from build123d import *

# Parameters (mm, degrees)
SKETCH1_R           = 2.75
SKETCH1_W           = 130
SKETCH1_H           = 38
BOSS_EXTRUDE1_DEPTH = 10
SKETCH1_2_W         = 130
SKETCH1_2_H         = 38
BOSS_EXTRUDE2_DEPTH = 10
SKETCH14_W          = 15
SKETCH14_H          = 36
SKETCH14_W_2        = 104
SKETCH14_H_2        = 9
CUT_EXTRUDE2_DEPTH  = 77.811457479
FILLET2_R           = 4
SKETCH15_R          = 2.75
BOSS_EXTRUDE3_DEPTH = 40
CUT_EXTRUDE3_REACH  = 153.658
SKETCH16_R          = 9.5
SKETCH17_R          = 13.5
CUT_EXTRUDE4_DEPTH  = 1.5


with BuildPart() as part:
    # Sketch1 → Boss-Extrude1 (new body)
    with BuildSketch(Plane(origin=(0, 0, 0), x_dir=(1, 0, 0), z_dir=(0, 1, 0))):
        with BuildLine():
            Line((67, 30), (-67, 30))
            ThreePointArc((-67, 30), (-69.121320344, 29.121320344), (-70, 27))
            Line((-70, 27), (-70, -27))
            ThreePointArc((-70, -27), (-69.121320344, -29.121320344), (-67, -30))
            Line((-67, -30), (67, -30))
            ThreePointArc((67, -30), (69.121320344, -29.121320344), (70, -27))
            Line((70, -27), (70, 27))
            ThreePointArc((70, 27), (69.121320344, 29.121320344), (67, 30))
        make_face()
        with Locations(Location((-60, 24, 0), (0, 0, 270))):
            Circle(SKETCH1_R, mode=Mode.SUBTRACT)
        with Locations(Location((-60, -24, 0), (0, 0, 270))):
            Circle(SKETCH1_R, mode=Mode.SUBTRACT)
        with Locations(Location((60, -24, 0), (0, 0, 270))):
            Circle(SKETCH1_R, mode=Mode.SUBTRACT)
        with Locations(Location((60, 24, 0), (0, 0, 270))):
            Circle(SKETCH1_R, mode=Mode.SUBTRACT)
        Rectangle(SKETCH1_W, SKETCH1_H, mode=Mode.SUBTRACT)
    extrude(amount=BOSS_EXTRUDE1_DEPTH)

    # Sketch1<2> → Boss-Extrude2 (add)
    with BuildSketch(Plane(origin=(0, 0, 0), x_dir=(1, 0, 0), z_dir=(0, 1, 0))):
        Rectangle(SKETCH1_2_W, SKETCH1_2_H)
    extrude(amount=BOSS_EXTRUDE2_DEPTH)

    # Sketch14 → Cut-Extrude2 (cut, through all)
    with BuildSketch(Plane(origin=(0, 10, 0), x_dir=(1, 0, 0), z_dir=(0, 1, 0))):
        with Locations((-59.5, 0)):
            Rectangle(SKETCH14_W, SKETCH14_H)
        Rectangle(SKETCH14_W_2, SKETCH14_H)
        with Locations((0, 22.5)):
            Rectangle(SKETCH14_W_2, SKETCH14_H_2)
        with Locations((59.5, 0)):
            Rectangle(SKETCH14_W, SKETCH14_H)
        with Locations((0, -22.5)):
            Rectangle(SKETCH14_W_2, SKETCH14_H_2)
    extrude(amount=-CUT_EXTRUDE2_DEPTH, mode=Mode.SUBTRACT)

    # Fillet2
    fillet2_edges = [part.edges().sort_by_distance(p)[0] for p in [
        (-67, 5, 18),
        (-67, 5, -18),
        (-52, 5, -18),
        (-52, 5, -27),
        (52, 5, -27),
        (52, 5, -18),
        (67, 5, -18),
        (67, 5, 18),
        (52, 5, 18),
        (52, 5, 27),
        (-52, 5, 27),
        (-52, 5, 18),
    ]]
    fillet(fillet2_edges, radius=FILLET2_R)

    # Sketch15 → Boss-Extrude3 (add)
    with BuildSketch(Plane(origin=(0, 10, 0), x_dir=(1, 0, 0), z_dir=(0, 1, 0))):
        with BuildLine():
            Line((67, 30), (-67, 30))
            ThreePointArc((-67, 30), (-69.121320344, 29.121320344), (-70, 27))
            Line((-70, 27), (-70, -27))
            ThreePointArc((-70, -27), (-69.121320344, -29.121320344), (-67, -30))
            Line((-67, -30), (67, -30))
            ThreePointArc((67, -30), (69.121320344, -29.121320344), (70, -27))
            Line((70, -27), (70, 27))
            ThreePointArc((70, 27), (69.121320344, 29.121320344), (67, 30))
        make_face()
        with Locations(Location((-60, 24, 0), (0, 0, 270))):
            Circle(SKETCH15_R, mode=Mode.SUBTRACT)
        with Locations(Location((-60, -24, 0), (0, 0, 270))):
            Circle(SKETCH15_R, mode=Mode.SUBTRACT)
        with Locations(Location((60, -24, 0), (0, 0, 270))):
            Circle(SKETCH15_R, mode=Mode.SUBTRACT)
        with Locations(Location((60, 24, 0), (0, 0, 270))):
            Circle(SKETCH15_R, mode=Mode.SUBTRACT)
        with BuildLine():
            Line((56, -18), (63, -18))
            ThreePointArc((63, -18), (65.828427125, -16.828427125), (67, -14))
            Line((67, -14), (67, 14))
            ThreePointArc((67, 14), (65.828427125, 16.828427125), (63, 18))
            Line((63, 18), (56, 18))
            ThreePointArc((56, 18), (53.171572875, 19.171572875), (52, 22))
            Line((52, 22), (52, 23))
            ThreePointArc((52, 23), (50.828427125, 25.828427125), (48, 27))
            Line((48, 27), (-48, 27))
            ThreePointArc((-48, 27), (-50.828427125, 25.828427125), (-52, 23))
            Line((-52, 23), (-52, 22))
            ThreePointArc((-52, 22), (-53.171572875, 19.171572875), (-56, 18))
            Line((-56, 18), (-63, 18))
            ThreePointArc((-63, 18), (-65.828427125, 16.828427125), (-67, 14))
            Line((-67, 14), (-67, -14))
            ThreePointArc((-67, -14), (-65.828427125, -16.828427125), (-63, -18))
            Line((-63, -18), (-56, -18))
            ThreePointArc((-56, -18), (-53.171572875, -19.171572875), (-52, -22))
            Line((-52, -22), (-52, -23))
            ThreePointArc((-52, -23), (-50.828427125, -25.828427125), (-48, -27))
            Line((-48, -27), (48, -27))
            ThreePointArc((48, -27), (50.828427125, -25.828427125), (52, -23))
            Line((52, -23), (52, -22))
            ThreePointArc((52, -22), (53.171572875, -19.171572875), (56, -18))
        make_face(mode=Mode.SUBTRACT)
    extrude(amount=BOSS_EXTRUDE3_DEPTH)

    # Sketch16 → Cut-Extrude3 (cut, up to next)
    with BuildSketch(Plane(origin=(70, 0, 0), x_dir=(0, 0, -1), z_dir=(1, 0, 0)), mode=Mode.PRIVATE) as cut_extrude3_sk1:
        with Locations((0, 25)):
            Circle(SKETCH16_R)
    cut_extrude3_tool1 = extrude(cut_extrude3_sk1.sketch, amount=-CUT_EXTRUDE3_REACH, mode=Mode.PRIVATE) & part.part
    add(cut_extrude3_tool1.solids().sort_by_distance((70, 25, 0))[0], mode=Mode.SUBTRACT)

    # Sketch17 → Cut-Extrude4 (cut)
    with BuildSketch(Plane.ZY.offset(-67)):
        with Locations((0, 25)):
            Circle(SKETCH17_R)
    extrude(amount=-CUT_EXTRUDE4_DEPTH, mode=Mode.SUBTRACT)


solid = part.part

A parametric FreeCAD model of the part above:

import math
import FreeCAD as App
import Part
import Sketcher

V = App.Vector


def edges_at(feature, points):
    """Names of the edges that pass closest to the given points."""
    edges = feature.Shape.Edges
    near = lambda p: min(range(len(edges)), key=lambda i: edges[i].distToShape(Part.Vertex(*p))[0])
    return sorted({f"Edge{near(p) + 1}" for p in points})

doc = App.newDocument("Part")
body = doc.addObject("PartDesign::Body", "Body")

sketch1 = doc.addObject("Sketcher::SketchObject", "Sketch")
body.addObject(sketch1)
sketch1.AttachmentSupport = (doc.XZ_Plane, [""])
sketch1.MapMode = "FlatFace"
sketch1.addGeometry(Part.LineSegment(V(67, -30, 0), V(-67, -30, 0)), False)
sketch1.addGeometry(Part.ArcOfCircle(Part.Circle(V(-67, -27, 0), V(0, 0, 1), 3), math.radians(180), math.radians(270)), False)
sketch1.addGeometry(Part.LineSegment(V(-70, -27, 0), V(-70, 27, 0)), False)
sketch1.addGeometry(Part.ArcOfCircle(Part.Circle(V(-67, 27, 0), V(0, 0, 1), 3), math.radians(90), math.radians(180)), False)
sketch1.addGeometry(Part.LineSegment(V(-67, 30, 0), V(67, 30, 0)), False)
sketch1.addGeometry(Part.ArcOfCircle(Part.Circle(V(67, 27, 0), V(0, 0, 1), 3), math.radians(0), math.radians(90)), False)
sketch1.addGeometry(Part.LineSegment(V(70, 27, 0), V(70, -27, 0)), False)
sketch1.addGeometry(Part.ArcOfCircle(Part.Circle(V(67, -27, 0), V(0, 0, 1), 3), math.radians(-90), math.radians(0)), False)
sketch1.addGeometry(Part.Circle(V(-60, 24, 0), V(0, 0, 1), 2.8), False)
sketch1.addGeometry(Part.Circle(V(60, 24, 0), V(0, 0, 1), 2.8), False)
sketch1.addGeometry(Part.LineSegment(V(65, 19, 0), V(-65, 19, 0)), False)
sketch1.addGeometry(Part.LineSegment(V(-65, 19, 0), V(-65, -19, 0)), False)
sketch1.addGeometry(Part.LineSegment(V(-65, -19, 0), V(65, -19, 0)), False)
sketch1.addGeometry(Part.LineSegment(V(65, -19, 0), V(65, 19, 0)), False)
sketch1.addGeometry(Part.Circle(V(-60, -24, 0), V(0, 0, 1), 2.8), False)
sketch1.addGeometry(Part.Circle(V(60, -24, 0), V(0, 0, 1), 2.8), False)
sketch1.addConstraint(Sketcher.Constraint("Tangent", 0, 2, 1, 2))
sketch1.addConstraint(Sketcher.Constraint("Tangent", 1, 1, 2, 1))
sketch1.addConstraint(Sketcher.Constraint("Tangent", 2, 2, 3, 2))
sketch1.addConstraint(Sketcher.Constraint("Tangent", 3, 1, 4, 1))
sketch1.addConstraint(Sketcher.Constraint("Tangent", 4, 2, 5, 2))
sketch1.addConstraint(Sketcher.Constraint("Tangent", 5, 1, 6, 1))
sketch1.addConstraint(Sketcher.Constraint("Tangent", 6, 2, 7, 2))
sketch1.addConstraint(Sketcher.Constraint("Tangent", 7, 1, 0, 1))
sketch1.addConstraint(Sketcher.Constraint("Coincident", 10, 2, 11, 1))
sketch1.addConstraint(Sketcher.Constraint("Coincident", 11, 2, 12, 1))
sketch1.addConstraint(Sketcher.Constraint("Coincident", 12, 2, 13, 1))
sketch1.addConstraint(Sketcher.Constraint("Coincident", 13, 2, 10, 1))
sketch1.addConstraint(Sketcher.Constraint("Horizontal", 0))
sketch1.addConstraint(Sketcher.Constraint("Vertical", 2))
sketch1.addConstraint(Sketcher.Constraint("Horizontal", 4))
sketch1.addConstraint(Sketcher.Constraint("Vertical", 6))
sketch1.addConstraint(Sketcher.Constraint("Horizontal", 10))
sketch1.addConstraint(Sketcher.Constraint("Vertical", 11))
sketch1.addConstraint(Sketcher.Constraint("Horizontal", 12))
sketch1.addConstraint(Sketcher.Constraint("Vertical", 13))
sketch1.addConstraint(Sketcher.Constraint("Equal", 1, 3))
sketch1.addConstraint(Sketcher.Constraint("Equal", 3, 5))
sketch1.addConstraint(Sketcher.Constraint("Equal", 5, 7))
sketch1.addConstraint(Sketcher.Constraint("Equal", 8, 9))
sketch1.addConstraint(Sketcher.Constraint("Equal", 9, 14))
sketch1.addConstraint(Sketcher.Constraint("Equal", 14, 15))
sketch1.addConstraint(Sketcher.Constraint("Symmetric", 1, 3, 5, 3, -1, 1))
sketch1.addConstraint(Sketcher.Constraint("Symmetric", 9, 3, 14, 3, -1, 1))
sketch1.addConstraint(Sketcher.Constraint("Symmetric", 8, 3, 15, 3, -1, 1))
sketch1.addConstraint(Sketcher.Constraint("Symmetric", 10, 2, 12, 2, -1, 1))
sketch1.addConstraint(Sketcher.Constraint("Symmetric", 8, 3, 9, 3, -2))
sketch1.addConstraint(Sketcher.Constraint("Radius", 1, 3.0))
sketch1.addConstraint(Sketcher.Constraint("Diameter", 8, 5.5))
sketch1.addConstraint(Sketcher.Constraint("DistanceX", 0, 2, 0, 1, 134.0))
sketch1.addConstraint(Sketcher.Constraint("DistanceX", 10, 2, 10, 1, 130.0))
sketch1.addConstraint(Sketcher.Constraint("DistanceY", 2, 1, 2, 2, 54.0))
sketch1.addConstraint(Sketcher.Constraint("DistanceY", 11, 2, 11, 1, 38.0))
sketch1.addConstraint(Sketcher.Constraint("DistanceX", 8, 3, -1, 1, 60.0))
sketch1.addConstraint(Sketcher.Constraint("DistanceY", -1, 1, 8, 3, 24.0))
pad1 = doc.addObject("PartDesign::Pad", "Pad")
body.addObject(pad1)
pad1.Profile = sketch1
pad1.Length = 10
pad1.Reversed = True

sketch2 = doc.addObject("Sketcher::SketchObject", "Sketch001")
body.addObject(sketch2)
sketch2.AttachmentSupport = (doc.XZ_Plane, [""])
sketch2.MapMode = "FlatFace"
sketch2.addGeometry(Part.LineSegment(V(-65, -19, 0), V(-65, 19, 0)), False)
sketch2.addGeometry(Part.LineSegment(V(-65, 19, 0), V(65, 19, 0)), False)
sketch2.addGeometry(Part.LineSegment(V(65, 19, 0), V(65, -19, 0)), False)
sketch2.addGeometry(Part.LineSegment(V(65, -19, 0), V(-65, -19, 0)), False)
sketch2.addConstraint(Sketcher.Constraint("Coincident", 0, 2, 1, 1))
sketch2.addConstraint(Sketcher.Constraint("Coincident", 1, 2, 2, 1))
sketch2.addConstraint(Sketcher.Constraint("Coincident", 2, 2, 3, 1))
sketch2.addConstraint(Sketcher.Constraint("Coincident", 3, 2, 0, 1))
sketch2.addConstraint(Sketcher.Constraint("Vertical", 0))
sketch2.addConstraint(Sketcher.Constraint("Horizontal", 1))
sketch2.addConstraint(Sketcher.Constraint("Vertical", 2))
sketch2.addConstraint(Sketcher.Constraint("Horizontal", 3))
sketch2.addConstraint(Sketcher.Constraint("Symmetric", 0, 2, 2, 2, -1, 1))
sketch2.addConstraint(Sketcher.Constraint("DistanceX", 1, 1, 1, 2, 130.0))
sketch2.addConstraint(Sketcher.Constraint("DistanceY", 0, 1, 0, 2, 38.0))
pad2 = doc.addObject("PartDesign::Pad", "Pad001")
body.addObject(pad2)
pad2.Profile = sketch2
pad2.Length = 10
pad2.Reversed = True

sketch3 = doc.addObject("Sketcher::SketchObject", "Sketch002")
body.addObject(sketch3)
sketch3.AttachmentSupport = (doc.XZ_Plane, [""])
sketch3.MapMode = "FlatFace"
sketch3.AttachmentOffset = App.Placement(V(0, 0, -10), App.Rotation())
sketch3.addGeometry(Part.LineSegment(V(-67, -18, 0), V(-67, 18, 0)), False)
sketch3.addGeometry(Part.LineSegment(V(-67, 18, 0), V(-52, 18, 0)), False)
sketch3.addGeometry(Part.LineSegment(V(-52, 18, 0), V(-52, 27, 0)), False)
sketch3.addGeometry(Part.LineSegment(V(-52, 27, 0), V(52, 27, 0)), False)
sketch3.addGeometry(Part.LineSegment(V(52, 27, 0), V(52, 18, 0)), False)
sketch3.addGeometry(Part.LineSegment(V(52, 18, 0), V(67, 18, 0)), False)
sketch3.addGeometry(Part.LineSegment(V(67, 18, 0), V(67, -18, 0)), False)
sketch3.addGeometry(Part.LineSegment(V(67, -18, 0), V(52, -18, 0)), False)
sketch3.addGeometry(Part.LineSegment(V(52, -18, 0), V(52, -27, 0)), False)
sketch3.addGeometry(Part.LineSegment(V(52, -27, 0), V(-52, -27, 0)), False)
sketch3.addGeometry(Part.LineSegment(V(-52, -27, 0), V(-52, -18, 0)), False)
sketch3.addGeometry(Part.LineSegment(V(-52, -18, 0), V(-67, -18, 0)), False)
sketch3.addConstraint(Sketcher.Constraint("Coincident", 0, 2, 1, 1))
sketch3.addConstraint(Sketcher.Constraint("Coincident", 1, 2, 2, 1))
sketch3.addConstraint(Sketcher.Constraint("Coincident", 2, 2, 3, 1))
sketch3.addConstraint(Sketcher.Constraint("Coincident", 3, 2, 4, 1))
sketch3.addConstraint(Sketcher.Constraint("Coincident", 4, 2, 5, 1))
sketch3.addConstraint(Sketcher.Constraint("Coincident", 5, 2, 6, 1))
sketch3.addConstraint(Sketcher.Constraint("Coincident", 6, 2, 7, 1))
sketch3.addConstraint(Sketcher.Constraint("Coincident", 7, 2, 8, 1))
sketch3.addConstraint(Sketcher.Constraint("Coincident", 8, 2, 9, 1))
sketch3.addConstraint(Sketcher.Constraint("Coincident", 9, 2, 10, 1))
sketch3.addConstraint(Sketcher.Constraint("Coincident", 10, 2, 11, 1))
sketch3.addConstraint(Sketcher.Constraint("Coincident", 11, 2, 0, 1))
sketch3.addConstraint(Sketcher.Constraint("Vertical", 0))
sketch3.addConstraint(Sketcher.Constraint("Horizontal", 1))
sketch3.addConstraint(Sketcher.Constraint("Vertical", 2))
sketch3.addConstraint(Sketcher.Constraint("Horizontal", 3))
sketch3.addConstraint(Sketcher.Constraint("Vertical", 4))
sketch3.addConstraint(Sketcher.Constraint("Horizontal", 5))
sketch3.addConstraint(Sketcher.Constraint("Vertical", 6))
sketch3.addConstraint(Sketcher.Constraint("Horizontal", 7))
sketch3.addConstraint(Sketcher.Constraint("Vertical", 8))
sketch3.addConstraint(Sketcher.Constraint("Horizontal", 9))
sketch3.addConstraint(Sketcher.Constraint("Vertical", 10))
sketch3.addConstraint(Sketcher.Constraint("Horizontal", 11))
sketch3.addConstraint(Sketcher.Constraint("Symmetric", 0, 2, 6, 2, -1, 1))
sketch3.addConstraint(Sketcher.Constraint("Symmetric", 2, 2, 8, 2, -1, 1))
sketch3.addConstraint(Sketcher.Constraint("Symmetric", 4, 2, 10, 2, -1, 1))
sketch3.addConstraint(Sketcher.Constraint("Symmetric", 1, 2, 4, 2, -2))
sketch3.addConstraint(Sketcher.Constraint("DistanceX", 1, 1, 1, 2, 15.0))
sketch3.addConstraint(Sketcher.Constraint("DistanceX", 3, 1, 3, 2, 104.0))
sketch3.addConstraint(Sketcher.Constraint("DistanceY", 0, 1, 0, 2, 36.0))
sketch3.addConstraint(Sketcher.Constraint("DistanceY", 2, 1, 2, 2, 9.0))
pocket1 = doc.addObject("PartDesign::Pocket", "Pocket")
body.addObject(pocket1)
pocket1.Profile = sketch3
pocket1.Type = "ThroughAll"
pocket1.Reversed = True
doc.recompute()

fillet = doc.addObject("PartDesign::Fillet", "Fillet")
body.addObject(fillet)
fillet.Base = (pocket1, edges_at(pocket1, [
    (-67, 5, 18),
    (-67, 5, -18),
    (-52, 5, -18),
    (-52, 5, -27),
    (52, 5, -27),
    (52, 5, -18),
    (67, 5, -18),
    (67, 5, 18),
    (52, 5, 18),
    (52, 5, 27),
    (-52, 5, 27),
    (-52, 5, 18),
]))
fillet.Radius = 4

sketch4 = doc.addObject("Sketcher::SketchObject", "Sketch003")
body.addObject(sketch4)
sketch4.AttachmentSupport = (doc.XZ_Plane, [""])
sketch4.MapMode = "FlatFace"
sketch4.AttachmentOffset = App.Placement(V(0, 0, -10), App.Rotation())
sketch4.addGeometry(Part.LineSegment(V(67, -30, 0), V(-67, -30, 0)), False)
sketch4.addGeometry(Part.ArcOfCircle(Part.Circle(V(-67, -27, 0), V(0, 0, 1), 3), math.radians(180), math.radians(270)), False)
sketch4.addGeometry(Part.LineSegment(V(-70, -27, 0), V(-70, 27, 0)), False)
sketch4.addGeometry(Part.ArcOfCircle(Part.Circle(V(-67, 27, 0), V(0, 0, 1), 3), math.radians(90), math.radians(180)), False)
sketch4.addGeometry(Part.LineSegment(V(-67, 30, 0), V(67, 30, 0)), False)
sketch4.addGeometry(Part.ArcOfCircle(Part.Circle(V(67, 27, 0), V(0, 0, 1), 3), math.radians(0), math.radians(90)), False)
sketch4.addGeometry(Part.LineSegment(V(70, 27, 0), V(70, -27, 0)), False)
sketch4.addGeometry(Part.ArcOfCircle(Part.Circle(V(67, -27, 0), V(0, 0, 1), 3), math.radians(-90), math.radians(0)), False)
sketch4.addGeometry(Part.Circle(V(-60, 24, 0), V(0, 0, 1), 2.8), False)
sketch4.addGeometry(Part.Circle(V(60, 24, 0), V(0, 0, 1), 2.8), False)
sketch4.addGeometry(Part.Circle(V(-60, -24, 0), V(0, 0, 1), 2.8), False)
sketch4.addGeometry(Part.LineSegment(V(63, 18, 0), V(56, 18, 0)), False)
sketch4.addGeometry(Part.ArcOfCircle(Part.Circle(V(56, 22, 0), V(0, 0, 1), 4), math.radians(180), math.radians(270)), False)
sketch4.addGeometry(Part.LineSegment(V(52, 22, 0), V(52, 23, 0)), False)
sketch4.addGeometry(Part.ArcOfCircle(Part.Circle(V(48, 23, 0), V(0, 0, 1), 4), math.radians(0), math.radians(90)), False)
sketch4.addGeometry(Part.LineSegment(V(48, 27, 0), V(-48, 27, 0)), False)
sketch4.addGeometry(Part.ArcOfCircle(Part.Circle(V(-48, 23, 0), V(0, 0, 1), 4), math.radians(90), math.radians(180)), False)
sketch4.addGeometry(Part.LineSegment(V(-52, 23, 0), V(-52, 22, 0)), False)
sketch4.addGeometry(Part.ArcOfCircle(Part.Circle(V(-56, 22, 0), V(0, 0, 1), 4), math.radians(-90), math.radians(0)), False)
sketch4.addGeometry(Part.LineSegment(V(-56, 18, 0), V(-63, 18, 0)), False)
sketch4.addGeometry(Part.ArcOfCircle(Part.Circle(V(-63, 14, 0), V(0, 0, 1), 4), math.radians(90), math.radians(180)), False)
sketch4.addGeometry(Part.LineSegment(V(-67, 14, 0), V(-67, -14, 0)), False)
sketch4.addGeometry(Part.ArcOfCircle(Part.Circle(V(-63, -14, 0), V(0, 0, 1), 4), math.radians(180), math.radians(270)), False)
sketch4.addGeometry(Part.LineSegment(V(-63, -18, 0), V(-56, -18, 0)), False)
sketch4.addGeometry(Part.ArcOfCircle(Part.Circle(V(-56, -22, 0), V(0, 0, 1), 4), math.radians(0), math.radians(90)), False)
sketch4.addGeometry(Part.LineSegment(V(-52, -22, 0), V(-52, -23, 0)), False)
sketch4.addGeometry(Part.ArcOfCircle(Part.Circle(V(-48, -23, 0), V(0, 0, 1), 4), math.radians(180), math.radians(270)), False)
sketch4.addGeometry(Part.LineSegment(V(-48, -27, 0), V(48, -27, 0)), False)
sketch4.addGeometry(Part.ArcOfCircle(Part.Circle(V(48, -23, 0), V(0, 0, 1), 4), math.radians(-90), math.radians(0)), False)
sketch4.addGeometry(Part.LineSegment(V(52, -23, 0), V(52, -22, 0)), False)
sketch4.addGeometry(Part.ArcOfCircle(Part.Circle(V(56, -22, 0), V(0, 0, 1), 4), math.radians(90), math.radians(180)), False)
sketch4.addGeometry(Part.LineSegment(V(56, -18, 0), V(63, -18, 0)), False)
sketch4.addGeometry(Part.ArcOfCircle(Part.Circle(V(63, -14, 0), V(0, 0, 1), 4), math.radians(-90), math.radians(0)), False)
sketch4.addGeometry(Part.LineSegment(V(67, -14, 0), V(67, 14, 0)), False)
sketch4.addGeometry(Part.ArcOfCircle(Part.Circle(V(63, 14, 0), V(0, 0, 1), 4), math.radians(0), math.radians(90)), False)
sketch4.addGeometry(Part.Circle(V(60, -24, 0), V(0, 0, 1), 2.8), False)
sketch4.addConstraint(Sketcher.Constraint("Tangent", 0, 2, 1, 2))
sketch4.addConstraint(Sketcher.Constraint("Tangent", 1, 1, 2, 1))
sketch4.addConstraint(Sketcher.Constraint("Tangent", 2, 2, 3, 2))
sketch4.addConstraint(Sketcher.Constraint("Tangent", 3, 1, 4, 1))
sketch4.addConstraint(Sketcher.Constraint("Tangent", 4, 2, 5, 2))
sketch4.addConstraint(Sketcher.Constraint("Tangent", 5, 1, 6, 1))
sketch4.addConstraint(Sketcher.Constraint("Tangent", 6, 2, 7, 2))
sketch4.addConstraint(Sketcher.Constraint("Tangent", 7, 1, 0, 1))
sketch4.addConstraint(Sketcher.Constraint("Tangent", 11, 2, 12, 2))
sketch4.addConstraint(Sketcher.Constraint("Tangent", 12, 1, 13, 1))
sketch4.addConstraint(Sketcher.Constraint("Tangent", 13, 2, 14, 1))
sketch4.addConstraint(Sketcher.Constraint("Tangent", 14, 2, 15, 1))
sketch4.addConstraint(Sketcher.Constraint("Tangent", 15, 2, 16, 1))
sketch4.addConstraint(Sketcher.Constraint("Tangent", 16, 2, 17, 1))
sketch4.addConstraint(Sketcher.Constraint("Tangent", 17, 2, 18, 2))
sketch4.addConstraint(Sketcher.Constraint("Tangent", 18, 1, 19, 1))
sketch4.addConstraint(Sketcher.Constraint("Tangent", 19, 2, 20, 1))
sketch4.addConstraint(Sketcher.Constraint("Tangent", 20, 2, 21, 1))
sketch4.addConstraint(Sketcher.Constraint("Tangent", 21, 2, 22, 1))
sketch4.addConstraint(Sketcher.Constraint("Tangent", 22, 2, 23, 1))
sketch4.addConstraint(Sketcher.Constraint("Tangent", 23, 2, 24, 2))
sketch4.addConstraint(Sketcher.Constraint("Tangent", 24, 1, 25, 1))
sketch4.addConstraint(Sketcher.Constraint("Tangent", 25, 2, 26, 1))
sketch4.addConstraint(Sketcher.Constraint("Tangent", 26, 2, 27, 1))
sketch4.addConstraint(Sketcher.Constraint("Tangent", 27, 2, 28, 1))
sketch4.addConstraint(Sketcher.Constraint("Tangent", 28, 2, 29, 1))
sketch4.addConstraint(Sketcher.Constraint("Tangent", 29, 2, 30, 2))
sketch4.addConstraint(Sketcher.Constraint("Tangent", 30, 1, 31, 1))
sketch4.addConstraint(Sketcher.Constraint("Tangent", 31, 2, 32, 1))
sketch4.addConstraint(Sketcher.Constraint("Tangent", 32, 2, 33, 1))
sketch4.addConstraint(Sketcher.Constraint("Tangent", 33, 2, 34, 1))
sketch4.addConstraint(Sketcher.Constraint("Tangent", 34, 2, 11, 1))
sketch4.addConstraint(Sketcher.Constraint("Horizontal", 0))
sketch4.addConstraint(Sketcher.Constraint("Vertical", 2))
sketch4.addConstraint(Sketcher.Constraint("Horizontal", 4))
sketch4.addConstraint(Sketcher.Constraint("Vertical", 6))
sketch4.addConstraint(Sketcher.Constraint("Horizontal", 11))
sketch4.addConstraint(Sketcher.Constraint("Vertical", 13))
sketch4.addConstraint(Sketcher.Constraint("Horizontal", 15))
sketch4.addConstraint(Sketcher.Constraint("Vertical", 17))
sketch4.addConstraint(Sketcher.Constraint("Horizontal", 19))
sketch4.addConstraint(Sketcher.Constraint("Vertical", 21))
sketch4.addConstraint(Sketcher.Constraint("Horizontal", 23))
sketch4.addConstraint(Sketcher.Constraint("Vertical", 25))
sketch4.addConstraint(Sketcher.Constraint("Horizontal", 27))
sketch4.addConstraint(Sketcher.Constraint("Vertical", 29))
sketch4.addConstraint(Sketcher.Constraint("Horizontal", 31))
sketch4.addConstraint(Sketcher.Constraint("Vertical", 33))
sketch4.addConstraint(Sketcher.Constraint("Equal", 1, 3))
sketch4.addConstraint(Sketcher.Constraint("Equal", 3, 5))
sketch4.addConstraint(Sketcher.Constraint("Equal", 5, 7))
sketch4.addConstraint(Sketcher.Constraint("Equal", 8, 9))
sketch4.addConstraint(Sketcher.Constraint("Equal", 9, 10))
sketch4.addConstraint(Sketcher.Constraint("Equal", 12, 14))
sketch4.addConstraint(Sketcher.Constraint("Equal", 14, 16))
sketch4.addConstraint(Sketcher.Constraint("Equal", 16, 18))
sketch4.addConstraint(Sketcher.Constraint("Equal", 18, 20))
sketch4.addConstraint(Sketcher.Constraint("Equal", 20, 22))
sketch4.addConstraint(Sketcher.Constraint("Equal", 22, 24))
sketch4.addConstraint(Sketcher.Constraint("Equal", 24, 26))
sketch4.addConstraint(Sketcher.Constraint("Equal", 26, 28))
sketch4.addConstraint(Sketcher.Constraint("Equal", 28, 30))
sketch4.addConstraint(Sketcher.Constraint("Equal", 30, 32))
sketch4.addConstraint(Sketcher.Constraint("Equal", 32, 34))
sketch4.addConstraint(Sketcher.Constraint("Equal", 10, 35))
sketch4.addConstraint(Sketcher.Constraint("Symmetric", 1, 3, 5, 3, -1, 1))
sketch4.addConstraint(Sketcher.Constraint("Symmetric", 9, 3, 10, 3, -1, 1))
sketch4.addConstraint(Sketcher.Constraint("Symmetric", 12, 3, 24, 3, -1, 1))
sketch4.addConstraint(Sketcher.Constraint("Symmetric", 16, 3, 28, 3, -1, 1))
sketch4.addConstraint(Sketcher.Constraint("Symmetric", 20, 3, 32, 3, -1, 1))
sketch4.addConstraint(Sketcher.Constraint("Symmetric", 8, 3, 35, 3, -1, 1))
sketch4.addConstraint(Sketcher.Constraint("Symmetric", 8, 3, 9, 3, -2))
sketch4.addConstraint(Sketcher.Constraint("Symmetric", 12, 3, 18, 3, -2))
sketch4.addConstraint(Sketcher.Constraint("Horizontal", 5, 1, 14, 2))
sketch4.addConstraint(Sketcher.Constraint("Vertical", 3, 1, 20, 2))
sketch4.addConstraint(Sketcher.Constraint("Radius", 1, 3.0))
sketch4.addConstraint(Sketcher.Constraint("Radius", 12, 4.0))
sketch4.addConstraint(Sketcher.Constraint("Diameter", 8, 5.5))
sketch4.addConstraint(Sketcher.Constraint("DistanceX", 0, 2, 0, 1, 134.0))
sketch4.addConstraint(Sketcher.Constraint("DistanceX", 11, 2, 11, 1, 7.0))
sketch4.addConstraint(Sketcher.Constraint("DistanceY", 2, 1, 2, 2, 54.0))
sketch4.addConstraint(Sketcher.Constraint("DistanceY", 13, 1, 13, 2, 1.0))
sketch4.addConstraint(Sketcher.Constraint("DistanceX", 8, 3, -1, 1, 60.0))
sketch4.addConstraint(Sketcher.Constraint("DistanceY", -1, 1, 8, 3, 24.0))
pad3 = doc.addObject("PartDesign::Pad", "Pad002")
body.addObject(pad3)
pad3.Profile = sketch4
pad3.Length = 40
pad3.Reversed = True

sketch5 = doc.addObject("Sketcher::SketchObject", "Sketch004")
body.addObject(sketch5)
sketch5.AttachmentSupport = (doc.YZ_Plane, [""])
sketch5.MapMode = "FlatFace"
sketch5.AttachmentOffset = App.Placement(V(0, 0, 70), App.Rotation())
sketch5.addGeometry(Part.Circle(V(25, 0, 0), V(0, 0, 1), 10), False)
sketch5.addConstraint(Sketcher.Constraint("PointOnObject", 0, 3, -1))
sketch5.addConstraint(Sketcher.Constraint("Diameter", 0, 19.0))
sketch5.addConstraint(Sketcher.Constraint("DistanceX", -1, 1, 0, 3, 25.0))
pocket2 = doc.addObject("PartDesign::Pocket", "Pocket001")
body.addObject(pocket2)
pocket2.Profile = sketch5
pocket2.Type = "UpToFirst"

sketch6 = doc.addObject("Sketcher::SketchObject", "Sketch005")
body.addObject(sketch6)
sketch6.AttachmentSupport = (doc.YZ_Plane, [""])
sketch6.MapMode = "FlatFace"
sketch6.AttachmentOffset = App.Placement(V(0, 0, 67), App.Rotation())
sketch6.addGeometry(Part.Circle(V(25, 0, 0), V(0, 0, 1), 14), False)
sketch6.addConstraint(Sketcher.Constraint("PointOnObject", 0, 3, -1))
sketch6.addConstraint(Sketcher.Constraint("Diameter", 0, 27.0))
sketch6.addConstraint(Sketcher.Constraint("DistanceX", -1, 1, 0, 3, 25.0))
pocket3 = doc.addObject("PartDesign::Pocket", "Pocket002")
body.addObject(pocket3)
pocket3.Profile = sketch6
pocket3.Length = 1.5
pocket3.Reversed = True

doc.recompute()
